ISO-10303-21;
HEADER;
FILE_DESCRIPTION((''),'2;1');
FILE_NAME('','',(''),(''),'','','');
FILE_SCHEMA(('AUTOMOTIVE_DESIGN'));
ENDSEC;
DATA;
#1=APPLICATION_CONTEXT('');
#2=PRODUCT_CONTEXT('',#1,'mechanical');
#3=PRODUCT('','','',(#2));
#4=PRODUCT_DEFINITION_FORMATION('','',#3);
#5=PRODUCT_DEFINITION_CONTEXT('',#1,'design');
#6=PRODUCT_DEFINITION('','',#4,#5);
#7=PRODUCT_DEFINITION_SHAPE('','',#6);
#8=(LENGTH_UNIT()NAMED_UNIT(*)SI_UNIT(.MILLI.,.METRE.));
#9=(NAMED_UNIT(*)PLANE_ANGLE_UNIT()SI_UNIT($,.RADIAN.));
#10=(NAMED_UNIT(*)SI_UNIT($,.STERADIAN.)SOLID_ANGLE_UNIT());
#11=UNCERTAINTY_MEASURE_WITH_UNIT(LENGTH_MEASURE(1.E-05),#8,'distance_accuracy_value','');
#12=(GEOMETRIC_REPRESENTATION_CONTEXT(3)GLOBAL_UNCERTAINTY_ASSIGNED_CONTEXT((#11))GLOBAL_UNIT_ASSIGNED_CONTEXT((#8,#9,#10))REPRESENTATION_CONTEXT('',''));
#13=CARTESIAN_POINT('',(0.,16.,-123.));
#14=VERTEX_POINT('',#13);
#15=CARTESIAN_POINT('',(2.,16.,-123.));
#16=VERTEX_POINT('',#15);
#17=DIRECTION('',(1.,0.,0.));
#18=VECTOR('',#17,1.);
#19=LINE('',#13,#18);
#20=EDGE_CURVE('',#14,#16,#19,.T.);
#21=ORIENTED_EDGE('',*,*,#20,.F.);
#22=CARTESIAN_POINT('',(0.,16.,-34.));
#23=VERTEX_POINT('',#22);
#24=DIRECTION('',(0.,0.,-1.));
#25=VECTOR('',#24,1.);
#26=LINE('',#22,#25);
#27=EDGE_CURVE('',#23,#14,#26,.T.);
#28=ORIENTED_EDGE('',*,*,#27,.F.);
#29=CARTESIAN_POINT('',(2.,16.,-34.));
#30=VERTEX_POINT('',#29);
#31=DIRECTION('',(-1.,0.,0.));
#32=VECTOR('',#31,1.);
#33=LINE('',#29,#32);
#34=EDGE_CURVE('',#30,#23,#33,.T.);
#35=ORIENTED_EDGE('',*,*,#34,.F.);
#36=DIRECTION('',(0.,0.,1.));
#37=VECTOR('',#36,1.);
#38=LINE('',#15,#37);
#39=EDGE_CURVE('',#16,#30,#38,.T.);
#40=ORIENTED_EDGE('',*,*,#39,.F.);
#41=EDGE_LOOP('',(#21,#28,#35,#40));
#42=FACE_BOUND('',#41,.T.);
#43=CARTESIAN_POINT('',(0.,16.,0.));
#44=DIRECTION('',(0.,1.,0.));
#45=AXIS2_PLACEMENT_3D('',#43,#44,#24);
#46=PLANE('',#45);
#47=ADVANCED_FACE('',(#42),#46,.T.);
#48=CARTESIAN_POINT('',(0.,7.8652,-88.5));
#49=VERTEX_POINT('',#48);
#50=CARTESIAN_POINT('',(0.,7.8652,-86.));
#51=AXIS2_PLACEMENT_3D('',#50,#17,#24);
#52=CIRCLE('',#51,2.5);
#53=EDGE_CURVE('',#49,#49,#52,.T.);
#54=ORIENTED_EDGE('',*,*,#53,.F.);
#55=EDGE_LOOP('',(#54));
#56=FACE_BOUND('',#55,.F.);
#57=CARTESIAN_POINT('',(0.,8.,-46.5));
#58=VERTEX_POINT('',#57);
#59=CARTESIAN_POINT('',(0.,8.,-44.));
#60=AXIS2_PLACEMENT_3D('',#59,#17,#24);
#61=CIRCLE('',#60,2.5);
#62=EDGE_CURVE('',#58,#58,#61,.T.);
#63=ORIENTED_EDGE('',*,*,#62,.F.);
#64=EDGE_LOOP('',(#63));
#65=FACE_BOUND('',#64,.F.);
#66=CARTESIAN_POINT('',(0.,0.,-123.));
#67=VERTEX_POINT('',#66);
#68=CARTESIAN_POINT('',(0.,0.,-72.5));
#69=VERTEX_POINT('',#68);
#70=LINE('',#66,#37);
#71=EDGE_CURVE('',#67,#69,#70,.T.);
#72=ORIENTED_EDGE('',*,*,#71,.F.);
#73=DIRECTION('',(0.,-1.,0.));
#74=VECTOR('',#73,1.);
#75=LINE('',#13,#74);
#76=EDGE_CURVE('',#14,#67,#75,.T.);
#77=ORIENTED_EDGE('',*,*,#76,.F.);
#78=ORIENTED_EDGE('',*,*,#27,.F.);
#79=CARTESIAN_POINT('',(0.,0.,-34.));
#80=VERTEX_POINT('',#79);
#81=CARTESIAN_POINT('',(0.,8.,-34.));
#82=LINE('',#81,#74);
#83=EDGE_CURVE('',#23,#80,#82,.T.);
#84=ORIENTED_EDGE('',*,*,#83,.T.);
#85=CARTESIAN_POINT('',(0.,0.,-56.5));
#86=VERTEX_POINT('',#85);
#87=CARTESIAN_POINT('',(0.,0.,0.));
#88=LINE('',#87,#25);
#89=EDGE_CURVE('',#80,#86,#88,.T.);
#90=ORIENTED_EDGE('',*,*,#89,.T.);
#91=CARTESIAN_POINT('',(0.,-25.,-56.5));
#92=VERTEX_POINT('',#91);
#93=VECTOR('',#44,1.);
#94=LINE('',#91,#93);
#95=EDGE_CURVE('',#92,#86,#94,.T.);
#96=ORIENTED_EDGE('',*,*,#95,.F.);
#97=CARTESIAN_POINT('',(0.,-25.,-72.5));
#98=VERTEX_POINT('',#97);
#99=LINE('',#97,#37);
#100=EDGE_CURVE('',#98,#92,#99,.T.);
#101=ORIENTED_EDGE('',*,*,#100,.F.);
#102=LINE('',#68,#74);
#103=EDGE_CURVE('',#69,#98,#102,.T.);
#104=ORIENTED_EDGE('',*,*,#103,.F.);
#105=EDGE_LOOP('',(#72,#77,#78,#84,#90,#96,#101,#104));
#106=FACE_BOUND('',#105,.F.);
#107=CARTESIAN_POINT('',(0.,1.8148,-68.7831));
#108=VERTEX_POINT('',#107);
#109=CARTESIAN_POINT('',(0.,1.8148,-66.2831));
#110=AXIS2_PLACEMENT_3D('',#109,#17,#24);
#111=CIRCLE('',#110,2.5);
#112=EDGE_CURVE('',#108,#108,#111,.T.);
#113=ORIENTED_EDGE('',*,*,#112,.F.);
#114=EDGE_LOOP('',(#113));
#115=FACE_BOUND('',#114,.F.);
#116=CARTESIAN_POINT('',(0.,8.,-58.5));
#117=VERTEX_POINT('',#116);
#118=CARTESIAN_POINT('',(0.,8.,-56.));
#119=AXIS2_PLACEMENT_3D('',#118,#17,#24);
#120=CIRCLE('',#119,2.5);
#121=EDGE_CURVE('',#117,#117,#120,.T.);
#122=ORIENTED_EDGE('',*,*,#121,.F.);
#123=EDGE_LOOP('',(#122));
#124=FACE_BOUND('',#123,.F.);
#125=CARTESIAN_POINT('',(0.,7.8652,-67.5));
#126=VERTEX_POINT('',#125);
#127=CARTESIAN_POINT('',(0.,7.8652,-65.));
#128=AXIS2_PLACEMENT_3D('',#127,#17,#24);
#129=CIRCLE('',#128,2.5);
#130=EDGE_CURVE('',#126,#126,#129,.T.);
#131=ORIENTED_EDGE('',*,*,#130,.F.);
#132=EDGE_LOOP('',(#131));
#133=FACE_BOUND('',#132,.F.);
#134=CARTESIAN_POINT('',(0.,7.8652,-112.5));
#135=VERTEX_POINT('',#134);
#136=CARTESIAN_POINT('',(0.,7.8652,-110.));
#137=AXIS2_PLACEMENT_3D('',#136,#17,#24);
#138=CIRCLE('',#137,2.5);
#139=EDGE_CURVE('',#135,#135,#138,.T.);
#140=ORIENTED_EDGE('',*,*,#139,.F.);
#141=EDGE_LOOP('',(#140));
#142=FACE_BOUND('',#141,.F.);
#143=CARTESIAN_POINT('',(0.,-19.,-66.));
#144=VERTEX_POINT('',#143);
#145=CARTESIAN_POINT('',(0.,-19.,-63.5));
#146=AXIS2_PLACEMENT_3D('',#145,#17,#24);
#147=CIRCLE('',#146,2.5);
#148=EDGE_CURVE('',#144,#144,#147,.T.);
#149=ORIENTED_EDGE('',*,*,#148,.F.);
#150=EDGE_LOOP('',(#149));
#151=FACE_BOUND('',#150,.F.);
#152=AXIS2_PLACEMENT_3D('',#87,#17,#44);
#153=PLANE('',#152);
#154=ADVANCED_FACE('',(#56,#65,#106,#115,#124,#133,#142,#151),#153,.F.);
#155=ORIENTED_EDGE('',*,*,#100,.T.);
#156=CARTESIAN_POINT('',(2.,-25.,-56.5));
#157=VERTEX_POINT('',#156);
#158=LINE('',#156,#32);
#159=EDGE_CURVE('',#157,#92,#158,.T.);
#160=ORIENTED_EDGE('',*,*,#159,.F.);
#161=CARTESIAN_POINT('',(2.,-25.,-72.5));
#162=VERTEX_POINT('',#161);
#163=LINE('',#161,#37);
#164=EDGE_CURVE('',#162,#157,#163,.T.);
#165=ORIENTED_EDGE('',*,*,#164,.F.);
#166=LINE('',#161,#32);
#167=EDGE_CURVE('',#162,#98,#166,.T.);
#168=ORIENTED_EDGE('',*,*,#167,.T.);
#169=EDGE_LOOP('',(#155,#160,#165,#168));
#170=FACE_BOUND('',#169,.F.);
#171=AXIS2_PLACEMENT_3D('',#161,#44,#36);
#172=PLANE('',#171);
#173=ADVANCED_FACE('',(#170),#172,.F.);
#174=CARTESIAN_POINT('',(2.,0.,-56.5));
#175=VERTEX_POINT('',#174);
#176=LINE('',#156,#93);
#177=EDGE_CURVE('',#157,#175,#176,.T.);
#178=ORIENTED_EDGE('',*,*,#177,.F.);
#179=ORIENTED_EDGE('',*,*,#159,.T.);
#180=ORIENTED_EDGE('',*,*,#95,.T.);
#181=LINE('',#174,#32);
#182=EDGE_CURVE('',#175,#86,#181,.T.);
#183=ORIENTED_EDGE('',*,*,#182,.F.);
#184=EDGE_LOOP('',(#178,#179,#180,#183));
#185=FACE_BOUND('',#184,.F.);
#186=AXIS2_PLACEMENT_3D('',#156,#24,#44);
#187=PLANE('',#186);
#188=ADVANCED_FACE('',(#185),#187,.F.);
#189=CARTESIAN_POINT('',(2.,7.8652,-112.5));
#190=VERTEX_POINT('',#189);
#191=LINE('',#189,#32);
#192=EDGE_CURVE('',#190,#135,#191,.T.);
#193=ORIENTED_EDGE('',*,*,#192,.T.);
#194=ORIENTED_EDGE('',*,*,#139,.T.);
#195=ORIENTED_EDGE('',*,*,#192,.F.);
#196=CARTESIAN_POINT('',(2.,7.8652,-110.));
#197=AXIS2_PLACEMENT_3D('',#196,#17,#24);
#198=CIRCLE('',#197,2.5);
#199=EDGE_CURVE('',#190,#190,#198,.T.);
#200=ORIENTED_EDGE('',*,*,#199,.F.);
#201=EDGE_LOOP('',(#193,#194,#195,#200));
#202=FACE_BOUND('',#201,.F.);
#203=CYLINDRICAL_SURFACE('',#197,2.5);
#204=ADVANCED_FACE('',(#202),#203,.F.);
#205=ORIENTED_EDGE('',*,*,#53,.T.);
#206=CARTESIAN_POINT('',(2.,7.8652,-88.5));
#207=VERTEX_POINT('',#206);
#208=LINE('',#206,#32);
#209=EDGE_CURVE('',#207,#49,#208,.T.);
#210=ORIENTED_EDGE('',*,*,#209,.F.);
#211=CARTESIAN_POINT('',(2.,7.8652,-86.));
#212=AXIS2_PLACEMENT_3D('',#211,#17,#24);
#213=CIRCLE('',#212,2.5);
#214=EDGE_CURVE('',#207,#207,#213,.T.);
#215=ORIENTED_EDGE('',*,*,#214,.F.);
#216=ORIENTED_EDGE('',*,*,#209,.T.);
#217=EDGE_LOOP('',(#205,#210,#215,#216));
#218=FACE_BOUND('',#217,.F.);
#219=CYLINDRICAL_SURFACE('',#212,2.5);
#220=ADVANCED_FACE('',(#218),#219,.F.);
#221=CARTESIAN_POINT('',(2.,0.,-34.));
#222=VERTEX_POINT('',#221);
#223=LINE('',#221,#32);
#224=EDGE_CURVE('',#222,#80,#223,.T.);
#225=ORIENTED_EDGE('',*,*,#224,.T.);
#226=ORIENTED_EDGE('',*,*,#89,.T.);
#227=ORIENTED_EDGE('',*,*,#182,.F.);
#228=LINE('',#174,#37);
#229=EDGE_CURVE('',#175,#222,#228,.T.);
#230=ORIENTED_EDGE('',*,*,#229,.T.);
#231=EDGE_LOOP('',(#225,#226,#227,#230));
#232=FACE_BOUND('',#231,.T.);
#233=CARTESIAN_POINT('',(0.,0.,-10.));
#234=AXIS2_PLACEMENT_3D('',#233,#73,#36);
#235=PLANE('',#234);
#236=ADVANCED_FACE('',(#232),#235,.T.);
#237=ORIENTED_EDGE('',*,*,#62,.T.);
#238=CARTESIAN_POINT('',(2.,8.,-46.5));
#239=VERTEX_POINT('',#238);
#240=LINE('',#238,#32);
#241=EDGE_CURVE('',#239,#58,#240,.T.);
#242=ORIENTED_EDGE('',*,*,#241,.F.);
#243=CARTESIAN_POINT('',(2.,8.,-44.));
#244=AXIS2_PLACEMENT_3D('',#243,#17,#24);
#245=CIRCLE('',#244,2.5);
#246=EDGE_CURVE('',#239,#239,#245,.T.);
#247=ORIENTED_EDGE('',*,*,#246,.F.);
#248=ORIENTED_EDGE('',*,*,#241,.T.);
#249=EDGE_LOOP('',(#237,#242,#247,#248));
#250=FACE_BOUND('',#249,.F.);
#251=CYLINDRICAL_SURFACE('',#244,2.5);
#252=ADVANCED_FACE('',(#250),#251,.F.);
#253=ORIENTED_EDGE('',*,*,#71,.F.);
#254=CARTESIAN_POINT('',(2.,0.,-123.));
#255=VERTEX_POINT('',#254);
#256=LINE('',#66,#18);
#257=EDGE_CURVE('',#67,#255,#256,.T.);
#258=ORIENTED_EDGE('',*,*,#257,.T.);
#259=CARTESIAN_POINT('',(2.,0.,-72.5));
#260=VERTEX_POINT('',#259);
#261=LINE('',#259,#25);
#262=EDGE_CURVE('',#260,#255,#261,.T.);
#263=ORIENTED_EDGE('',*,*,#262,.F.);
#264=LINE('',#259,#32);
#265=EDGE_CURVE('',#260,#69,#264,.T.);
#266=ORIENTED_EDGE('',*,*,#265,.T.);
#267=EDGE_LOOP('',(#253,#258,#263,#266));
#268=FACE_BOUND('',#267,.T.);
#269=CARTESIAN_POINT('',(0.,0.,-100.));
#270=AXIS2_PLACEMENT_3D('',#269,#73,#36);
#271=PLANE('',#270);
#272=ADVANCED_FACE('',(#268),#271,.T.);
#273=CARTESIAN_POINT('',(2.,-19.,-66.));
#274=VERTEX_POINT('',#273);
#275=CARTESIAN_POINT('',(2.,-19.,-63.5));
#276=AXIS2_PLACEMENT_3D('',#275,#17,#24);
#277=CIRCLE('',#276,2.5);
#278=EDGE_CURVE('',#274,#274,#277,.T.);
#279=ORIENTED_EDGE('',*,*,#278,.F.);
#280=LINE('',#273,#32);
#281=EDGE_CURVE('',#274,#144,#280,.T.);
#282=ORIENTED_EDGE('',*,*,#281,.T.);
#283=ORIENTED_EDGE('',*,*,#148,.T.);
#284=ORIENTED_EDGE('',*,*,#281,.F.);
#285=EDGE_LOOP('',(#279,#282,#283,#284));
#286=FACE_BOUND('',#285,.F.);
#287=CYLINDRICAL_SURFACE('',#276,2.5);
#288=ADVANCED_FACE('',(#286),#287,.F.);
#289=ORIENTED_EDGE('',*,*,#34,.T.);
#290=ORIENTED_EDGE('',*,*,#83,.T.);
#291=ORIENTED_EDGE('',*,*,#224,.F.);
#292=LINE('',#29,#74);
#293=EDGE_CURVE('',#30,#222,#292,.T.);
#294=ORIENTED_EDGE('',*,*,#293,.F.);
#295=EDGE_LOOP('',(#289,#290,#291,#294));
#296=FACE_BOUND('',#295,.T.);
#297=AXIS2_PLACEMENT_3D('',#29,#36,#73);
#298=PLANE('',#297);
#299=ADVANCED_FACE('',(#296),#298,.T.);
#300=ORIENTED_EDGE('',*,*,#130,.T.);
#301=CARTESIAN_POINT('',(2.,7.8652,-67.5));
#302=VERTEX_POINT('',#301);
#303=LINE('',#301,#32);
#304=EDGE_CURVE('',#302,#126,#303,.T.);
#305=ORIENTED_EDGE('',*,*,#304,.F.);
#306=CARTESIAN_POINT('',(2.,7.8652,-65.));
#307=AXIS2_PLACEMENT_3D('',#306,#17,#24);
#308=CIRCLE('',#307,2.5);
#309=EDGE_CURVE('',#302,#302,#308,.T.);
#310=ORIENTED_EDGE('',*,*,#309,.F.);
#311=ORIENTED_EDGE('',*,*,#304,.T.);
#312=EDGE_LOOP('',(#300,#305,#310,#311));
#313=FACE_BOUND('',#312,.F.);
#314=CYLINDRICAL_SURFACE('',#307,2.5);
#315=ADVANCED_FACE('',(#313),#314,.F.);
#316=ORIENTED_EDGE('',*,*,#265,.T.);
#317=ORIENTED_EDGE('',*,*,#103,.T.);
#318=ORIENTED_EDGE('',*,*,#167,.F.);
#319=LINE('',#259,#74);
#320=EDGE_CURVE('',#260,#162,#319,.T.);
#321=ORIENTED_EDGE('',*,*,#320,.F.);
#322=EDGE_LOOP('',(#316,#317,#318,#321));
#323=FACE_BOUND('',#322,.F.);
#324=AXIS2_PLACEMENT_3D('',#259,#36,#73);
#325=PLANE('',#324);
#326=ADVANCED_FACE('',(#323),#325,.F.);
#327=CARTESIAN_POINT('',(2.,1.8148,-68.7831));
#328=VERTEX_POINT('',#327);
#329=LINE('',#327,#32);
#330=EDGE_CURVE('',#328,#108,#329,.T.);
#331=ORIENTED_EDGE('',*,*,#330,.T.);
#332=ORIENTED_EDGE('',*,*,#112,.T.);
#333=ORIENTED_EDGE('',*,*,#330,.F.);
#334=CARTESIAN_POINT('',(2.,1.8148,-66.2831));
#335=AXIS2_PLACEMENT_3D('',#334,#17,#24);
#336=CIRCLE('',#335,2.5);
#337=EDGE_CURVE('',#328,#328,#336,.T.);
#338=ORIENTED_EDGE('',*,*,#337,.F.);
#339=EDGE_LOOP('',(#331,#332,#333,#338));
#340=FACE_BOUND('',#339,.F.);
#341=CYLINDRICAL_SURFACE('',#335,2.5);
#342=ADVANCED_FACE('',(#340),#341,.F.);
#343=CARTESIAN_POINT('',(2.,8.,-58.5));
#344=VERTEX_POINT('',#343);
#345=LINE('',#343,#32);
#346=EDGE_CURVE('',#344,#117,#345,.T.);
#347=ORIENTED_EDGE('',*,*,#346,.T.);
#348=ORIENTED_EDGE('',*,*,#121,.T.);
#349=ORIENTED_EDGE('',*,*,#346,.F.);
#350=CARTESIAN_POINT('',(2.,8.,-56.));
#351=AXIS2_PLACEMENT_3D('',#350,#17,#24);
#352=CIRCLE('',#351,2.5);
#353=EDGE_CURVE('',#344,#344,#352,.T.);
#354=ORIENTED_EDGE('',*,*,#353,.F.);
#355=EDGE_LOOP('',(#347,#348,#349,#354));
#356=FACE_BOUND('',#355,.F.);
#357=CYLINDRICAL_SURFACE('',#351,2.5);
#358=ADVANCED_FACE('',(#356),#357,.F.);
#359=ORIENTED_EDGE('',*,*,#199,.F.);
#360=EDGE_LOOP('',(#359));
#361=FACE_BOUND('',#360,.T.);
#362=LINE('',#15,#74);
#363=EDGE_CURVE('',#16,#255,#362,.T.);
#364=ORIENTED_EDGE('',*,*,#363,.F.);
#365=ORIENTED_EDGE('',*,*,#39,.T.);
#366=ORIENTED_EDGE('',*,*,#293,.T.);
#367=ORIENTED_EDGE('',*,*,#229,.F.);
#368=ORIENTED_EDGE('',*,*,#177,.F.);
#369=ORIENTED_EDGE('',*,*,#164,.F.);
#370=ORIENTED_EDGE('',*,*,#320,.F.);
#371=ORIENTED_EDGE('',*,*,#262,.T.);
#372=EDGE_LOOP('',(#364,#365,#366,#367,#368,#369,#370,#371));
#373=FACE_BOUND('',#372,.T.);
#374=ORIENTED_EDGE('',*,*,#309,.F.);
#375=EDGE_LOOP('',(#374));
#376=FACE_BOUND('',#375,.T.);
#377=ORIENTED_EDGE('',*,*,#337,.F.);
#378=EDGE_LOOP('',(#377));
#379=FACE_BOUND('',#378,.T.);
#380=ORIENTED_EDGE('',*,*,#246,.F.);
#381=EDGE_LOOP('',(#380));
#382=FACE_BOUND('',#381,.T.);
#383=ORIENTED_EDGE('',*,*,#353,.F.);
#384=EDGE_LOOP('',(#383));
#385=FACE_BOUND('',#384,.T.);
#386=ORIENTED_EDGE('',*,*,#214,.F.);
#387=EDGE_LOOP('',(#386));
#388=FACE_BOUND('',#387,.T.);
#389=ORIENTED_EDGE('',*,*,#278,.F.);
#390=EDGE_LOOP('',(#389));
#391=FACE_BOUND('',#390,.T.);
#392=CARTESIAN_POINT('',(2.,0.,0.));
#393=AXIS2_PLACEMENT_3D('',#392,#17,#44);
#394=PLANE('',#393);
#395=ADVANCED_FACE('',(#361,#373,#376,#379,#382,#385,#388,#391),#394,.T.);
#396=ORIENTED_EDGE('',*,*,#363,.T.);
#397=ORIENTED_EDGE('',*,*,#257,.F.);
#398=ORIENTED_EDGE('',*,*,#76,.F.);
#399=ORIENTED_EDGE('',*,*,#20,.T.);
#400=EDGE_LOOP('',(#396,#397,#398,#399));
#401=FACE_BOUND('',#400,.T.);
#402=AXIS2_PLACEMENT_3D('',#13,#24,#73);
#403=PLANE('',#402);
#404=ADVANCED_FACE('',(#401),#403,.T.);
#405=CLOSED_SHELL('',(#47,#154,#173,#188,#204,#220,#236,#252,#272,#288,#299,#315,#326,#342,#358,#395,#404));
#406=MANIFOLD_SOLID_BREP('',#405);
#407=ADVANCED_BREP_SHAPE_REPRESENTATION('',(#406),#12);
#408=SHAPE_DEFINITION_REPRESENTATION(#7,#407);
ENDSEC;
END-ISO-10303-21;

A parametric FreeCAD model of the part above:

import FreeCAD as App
import Part
import Sketcher


def add_polygon(sketch, points):
    """Adds a closed chain of lines whose ends are joined by coincident constraints."""
    first, n = sketch.GeometryCount, len(points)
    for a, b in zip(points, points[1:] + points[:1]):
        sketch.addGeometry(Part.LineSegment(App.Vector(*a, 0), App.Vector(*b, 0)), False)
    for i in range(n):
        sketch.addConstraint(Sketcher.Constraint("Coincident", first + i, 2, first + (i + 1) % n, 1))

doc = App.newDocument("Part")
body = doc.addObject("PartDesign::Body", "Body")

sketch1 = body.newObject("Sketcher::SketchObject", "Sketch")
sketch1.AttachmentSupport = (doc.getObject("YZ_Plane"), [""])
sketch1.MapMode = "FlatFace"
add_polygon(sketch1, [(16, 0), (0, 0), (0, -100), (16, -100)])
sketch1.addConstraint(Sketcher.Constraint("Horizontal", 0))
sketch1.addConstraint(Sketcher.Constraint("Vertical", 1))
sketch1.addConstraint(Sketcher.Constraint("Horizontal", 2))
sketch1.addConstraint(Sketcher.Constraint("Vertical", 3))
sketch1.addConstraint(Sketcher.Constraint("Coincident", 0, 2, -1, 1))
sketch1.addConstraint(Sketcher.Constraint("DistanceX", 0, 2, 0, 1, 16.0))
sketch1.addConstraint(Sketcher.Constraint("DistanceY", 1, 2, 1, 1, 100.0))
pad1 = body.newObject("PartDesign::Pad", "Pad")
pad1.Profile = sketch1
pad1.Length = 2

sketch2 = body.newObject("Sketcher::SketchObject", "Sketch001")
sketch2.AttachmentSupport = (doc.getObject("YZ_Plane"), [""])
sketch2.MapMode = "FlatFace"
sketch2.AttachmentOffset = App.Placement(App.Vector(0, 0, 2), App.Rotation())
add_polygon(sketch2, [(0, -56.5), (-25, -56.5), (-25, -72.5), (0, -72.5)])
sketch2.addGeometry(Part.Circle(App.Vector(-19, -63.5, 0), App.Vector(0, 0, 1), 2.5), False)
sketch2.addConstraint(Sketcher.Constraint("Horizontal", 0))
sketch2.addConstraint(Sketcher.Constraint("Vertical", 1))
sketch2.addConstraint(Sketcher.Constraint("Horizontal", 2))
sketch2.addConstraint(Sketcher.Constraint("Vertical", 3))
sketch2.addConstraint(Sketcher.Constraint("PointOnObject", 2, 2, -2))
sketch2.addConstraint(Sketcher.Constraint("Diameter", 4, 5.0))
sketch2.addConstraint(Sketcher.Constraint("DistanceX", 0, 2, 0, 1, 25.0))
sketch2.addConstraint(Sketcher.Constraint("DistanceY", 1, 2, 1, 1, 16.0))
sketch2.addConstraint(Sketcher.Constraint("DistanceY", 1, 2, 4, 3, 9.0))
sketch2.addConstraint(Sketcher.Constraint("DistanceX", 4, 3, -1, 1, 19.0))
sketch2.addConstraint(Sketcher.Constraint("DistanceY", 4, 3, -1, 1, 63.5))
pad2 = body.newObject("PartDesign::Pad", "Pad001")
pad2.Profile = sketch2
pad2.Length = 2
pad2.Reversed = True

sketch3 = body.newObject("Sketcher::SketchObject", "Sketch002")
sketch3.AttachmentSupport = (doc.getObject("YZ_Plane"), [""])
sketch3.MapMode = "FlatFace"
sketch3.AttachmentOffset = App.Placement(App.Vector(0, 0, 2), App.Rotation())
sketch3.addGeometry(Part.Circle(App.Vector(8, -44, 0), App.Vector(0, 0, 1), 2.5), False)
sketch3.addGeometry(Part.Circle(App.Vector(8, -56, 0), App.Vector(0, 0, 1), 2.5), False)
sketch3.addGeometry(Part.Circle(App.Vector(1.8, -66.3, 0), App.Vector(0, 0, 1), 2.5), False)
sketch3.addConstraint(Sketcher.Constraint("Equal", 0, 1))
sketch3.addConstraint(Sketcher.Constraint("Equal", 1, 2))
sketch3.addConstraint(Sketcher.Constraint("Vertical", 0, 3, 1, 3))
sketch3.addConstraint(Sketcher.Constraint("Diameter", 0, 5.0))
sketch3.addConstraint(Sketcher.Constraint("DistanceX", -1, 1, 0, 3, 8.0))
sketch3.addConstraint(Sketcher.Constraint("DistanceY", 0, 3, -1, 1, 44.0))
sketch3.addConstraint(Sketcher.Constraint("DistanceY", 1, 3, -1, 1, 56.0))
sketch3.addConstraint(Sketcher.Constraint("DistanceY", 2, 3, -1, 1, 66.283))
sketch3.addConstraint(Sketcher.Constraint("DistanceX", -1, 1, 2, 3, 1.8148))
pocket1 = body.newObject("PartDesign::Pocket", "Pocket")
pocket1.Profile = sketch3
pocket1.Length = 10

sketch4 = body.newObject("Sketcher::SketchObject", "Sketch003")
sketch4.AttachmentSupport = (doc.getObject("YZ_Plane"), [""])
sketch4.MapMode = "FlatFace"
sketch4.AttachmentOffset = App.Placement(App.Vector(0, 0, 2), App.Rotation())
add_polygon(sketch4, [(16, 0), (0, 0), (0, -34), (16, -34)])
sketch4.addConstraint(Sketcher.Constraint("Horizontal", 0))
sketch4.addConstraint(Sketcher.Constraint("Vertical", 1))
sketch4.addConstraint(Sketcher.Constraint("Horizontal", 2))
sketch4.addConstraint(Sketcher.Constraint("Vertical", 3))
sketch4.addConstraint(Sketcher.Constraint("Coincident", 0, 2, -1, 1))
sketch4.addConstraint(Sketcher.Constraint("DistanceX", 0, 2, 0, 1, 16.0))
sketch4.addConstraint(Sketcher.Constraint("DistanceY", 1, 2, 1, 1, 34.0))
pocket2 = body.newObject("PartDesign::Pocket", "Pocket001")
pocket2.Profile = sketch4
pocket2.Length = 10

sketch5 = body.newObject("Sketcher::SketchObject", "Sketch004")
sketch5.AttachmentSupport = (doc.getObject("YZ_Plane"), [""])
sketch5.MapMode = "FlatFace"
sketch5.AttachmentOffset = App.Placement(App.Vector(0, 0, 2), App.Rotation())
sketch5.addGeometry(Part.Circle(App.Vector(7.9, -65, 0), App.Vector(0, 0, 1), 2.5), False)
sketch5.addGeometry(Part.Circle(App.Vector(7.9, -86, 0), App.Vector(0, 0, 1), 2.5), False)
sketch5.addConstraint(Sketcher.Constraint("Equal", 0, 1))
sketch5.addConstraint(Sketcher.Constraint("Vertical", 0, 3, 1, 3))
sketch5.addConstraint(Sketcher.Constraint("Diameter", 0, 5.0))
sketch5.addConstraint(Sketcher.Constraint("DistanceY", 1, 3, 0, 3, 21.0))
sketch5.addConstraint(Sketcher.Constraint("DistanceY", 0, 3, -1, 1, 65.0))
sketch5.addConstraint(Sketcher.Constraint("DistanceX", -1, 1, 0, 3, 7.8652))
pocket3 = body.newObject("PartDesign::Pocket", "Pocket002")
pocket3.Profile = sketch5
pocket3.Length = 10

sketch6 = body.newObject("Sketcher::SketchObject", "Sketch005")
sketch6.AttachmentSupport = (doc.getObject("YZ_Plane"), [""])
sketch6.MapMode = "FlatFace"
add_polygon(sketch6, [(16, -100), (16, -123), (0, -123), (0, -100)])
sketch6.addConstraint(Sketcher.Constraint("Vertical", 0))
sketch6.addConstraint(Sketcher.Constraint("Horizontal", 1))
sketch6.addConstraint(Sketcher.Constraint("Vertical", 2))
sketch6.addConstraint(Sketcher.Constraint("Horizontal", 3))
sketch6.addConstraint(Sketcher.Constraint("PointOnObject", 1, 2, -2))
sketch6.addConstraint(Sketcher.Constraint("DistanceY", 0, 2, 0, 1, 23.0))
sketch6.addConstraint(Sketcher.Constraint("DistanceX", 1, 2, 1, 1, 16.0))
sketch6.addConstraint(Sketcher.Constraint("DistanceY", 0, 2, -1, 1, 123.0))
pad3 = body.newObject("PartDesign::Pad", "Pad002")
pad3.Profile = sketch6
pad3.Length = 2

sketch7 = body.newObject("Sketcher::SketchObject", "Sketch006")
sketch7.AttachmentSupport = (doc.getObject("YZ_Plane"), [""])
sketch7.MapMode = "FlatFace"
sketch7.AttachmentOffset = App.Placement(App.Vector(0, 0, 2), App.Rotation())
sketch7.addGeometry(Part.Circle(App.Vector(7.9, -110, 0), App.Vector(0, 0, 1), 2.5), False)
sketch7.addConstraint(Sketcher.Constraint("Diameter", 0, 5.0))
sketch7.addConstraint(Sketcher.Constraint("DistanceY", 0, 3, -1, 1, 110.0))
sketch7.addConstraint(Sketcher.Constraint("DistanceX", -1, 1, 0, 3, 7.8652))
pocket4 = body.newObject("PartDesign::Pocket", "Pocket003")
pocket4.Profile = sketch7
pocket4.Length = 10

doc.recompute()
